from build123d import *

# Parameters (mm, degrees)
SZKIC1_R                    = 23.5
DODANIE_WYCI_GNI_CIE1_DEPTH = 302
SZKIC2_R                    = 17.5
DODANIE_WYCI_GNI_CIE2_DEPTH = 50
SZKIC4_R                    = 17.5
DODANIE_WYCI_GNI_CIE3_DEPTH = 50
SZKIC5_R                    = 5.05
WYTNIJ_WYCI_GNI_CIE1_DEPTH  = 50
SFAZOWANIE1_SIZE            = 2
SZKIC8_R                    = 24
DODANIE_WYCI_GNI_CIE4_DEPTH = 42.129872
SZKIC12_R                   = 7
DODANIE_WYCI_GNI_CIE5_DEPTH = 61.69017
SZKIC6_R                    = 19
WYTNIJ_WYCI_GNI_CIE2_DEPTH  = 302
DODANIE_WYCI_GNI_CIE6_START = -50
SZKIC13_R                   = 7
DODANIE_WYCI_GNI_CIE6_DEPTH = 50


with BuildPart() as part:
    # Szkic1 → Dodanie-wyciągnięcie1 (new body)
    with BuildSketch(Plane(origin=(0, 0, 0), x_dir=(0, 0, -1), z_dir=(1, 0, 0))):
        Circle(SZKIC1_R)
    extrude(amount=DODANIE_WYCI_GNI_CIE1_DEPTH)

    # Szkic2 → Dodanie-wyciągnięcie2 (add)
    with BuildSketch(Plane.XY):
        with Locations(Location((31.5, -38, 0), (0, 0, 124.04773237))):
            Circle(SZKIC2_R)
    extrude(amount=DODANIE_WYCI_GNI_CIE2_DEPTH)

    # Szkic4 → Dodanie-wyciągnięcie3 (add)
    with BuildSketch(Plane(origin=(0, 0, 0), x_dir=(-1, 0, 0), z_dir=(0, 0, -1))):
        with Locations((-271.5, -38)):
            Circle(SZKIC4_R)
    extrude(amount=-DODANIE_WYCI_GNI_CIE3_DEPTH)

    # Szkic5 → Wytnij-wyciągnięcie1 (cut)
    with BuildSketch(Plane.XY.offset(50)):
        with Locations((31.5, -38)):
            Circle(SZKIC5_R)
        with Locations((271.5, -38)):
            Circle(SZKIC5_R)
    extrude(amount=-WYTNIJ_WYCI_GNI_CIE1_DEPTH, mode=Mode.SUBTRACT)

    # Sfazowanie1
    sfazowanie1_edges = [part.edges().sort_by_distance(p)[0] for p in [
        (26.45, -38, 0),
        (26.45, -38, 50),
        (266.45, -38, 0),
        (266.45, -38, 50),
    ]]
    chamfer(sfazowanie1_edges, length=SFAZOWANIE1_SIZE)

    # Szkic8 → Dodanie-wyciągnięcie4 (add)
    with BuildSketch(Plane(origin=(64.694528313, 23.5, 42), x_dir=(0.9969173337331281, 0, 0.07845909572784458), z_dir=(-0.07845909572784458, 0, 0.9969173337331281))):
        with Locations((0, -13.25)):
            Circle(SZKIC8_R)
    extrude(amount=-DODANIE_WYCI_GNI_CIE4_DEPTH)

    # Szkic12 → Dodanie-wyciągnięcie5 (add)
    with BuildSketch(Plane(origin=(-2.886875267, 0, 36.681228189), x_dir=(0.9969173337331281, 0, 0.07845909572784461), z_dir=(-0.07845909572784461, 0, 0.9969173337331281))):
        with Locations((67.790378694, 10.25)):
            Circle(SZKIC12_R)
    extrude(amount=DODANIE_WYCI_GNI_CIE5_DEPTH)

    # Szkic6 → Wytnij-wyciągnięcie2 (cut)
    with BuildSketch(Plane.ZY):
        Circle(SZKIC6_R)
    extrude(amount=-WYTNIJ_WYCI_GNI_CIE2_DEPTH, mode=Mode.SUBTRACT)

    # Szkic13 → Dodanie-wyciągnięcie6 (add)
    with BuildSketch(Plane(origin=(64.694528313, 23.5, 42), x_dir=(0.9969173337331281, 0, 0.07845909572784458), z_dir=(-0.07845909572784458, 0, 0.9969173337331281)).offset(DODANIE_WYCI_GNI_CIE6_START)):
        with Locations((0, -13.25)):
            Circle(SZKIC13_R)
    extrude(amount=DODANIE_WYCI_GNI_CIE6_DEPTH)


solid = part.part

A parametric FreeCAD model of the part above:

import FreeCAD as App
import Part
import Sketcher

V = App.Vector
Q = App.Units.Quantity


def edges_at(feature, points):
    """Names of the edges that pass closest to the given points."""
    edges = feature.Shape.Edges
    near = lambda p: min(range(len(edges)), key=lambda i: edges[i].distToShape(Part.Vertex(*p))[0])
    return sorted({f"Edge{near(p) + 1}" for p in points})

doc = App.newDocument("Part")
body = doc.addObject("PartDesign::Body", "Body")

# Sketch on YZ plane
sketch1 = doc.addObject("Sketcher::SketchObject", "Sketch")
body.addObject(sketch1)
sketch1.AttachmentSupport = (doc.YZ_Plane, [""])
sketch1.MapMode = "FlatFace"
sketch1.addGeometry(Part.Circle(V(0, 0, 0), V(0, 0, 1), 23.5), False)
sketch1.addConstraint([
    Sketcher.Constraint("Coincident", 0, 3, -1, 1),
    Sketcher.Constraint("Diameter", 0, Q("47 mm")),
])
pad1 = doc.addObject("PartDesign::Pad", "Pad")
body.addObject(pad1)
pad1.Profile = sketch1
pad1.Length = 302

# Sketch on XY plane
sketch2 = doc.addObject("Sketcher::SketchObject", "Sketch001")
body.addObject(sketch2)
sketch2.AttachmentSupport = (doc.XY_Plane, [""])
sketch2.MapMode = "FlatFace"
sketch2.addGeometry(Part.Circle(V(31.5, -38, 0), V(0, 0, 1), 17.5), False)
sketch2.addConstraint([
    Sketcher.Constraint("Diameter", 0, Q("35 mm")),
    Sketcher.Constraint("DistanceY", 0, 3, -1, 1, Q("38 mm")),
    Sketcher.Constraint("DistanceX", -1, 1, 0, 3, Q("31.5 mm")),
])
pad2 = doc.addObject("PartDesign::Pad", "Pad001")
body.addObject(pad2)
pad2.Profile = sketch2
pad2.Length = 50

# Sketch on XY plane
sketch3 = doc.addObject("Sketcher::SketchObject", "Sketch002")
body.addObject(sketch3)
sketch3.AttachmentSupport = (doc.XY_Plane, [""])
sketch3.MapMode = "FlatFace"
sketch3.addGeometry(Part.Circle(V(271.5, -38, 0), V(0, 0, 1), 17.5), False)
sketch3.addConstraint([
    Sketcher.Constraint("Diameter", 0, Q("35 mm")),
    Sketcher.Constraint("DistanceY", 0, 3, -1, 1, Q("38 mm")),
    Sketcher.Constraint("DistanceX", -1, 1, 0, 3, Q("271.5 mm")),
])
pad3 = doc.addObject("PartDesign::Pad", "Pad002")
body.addObject(pad3)
pad3.Profile = sketch3
pad3.Length = 50

# Sketch on XY plane
sketch4 = doc.addObject("Sketcher::SketchObject", "Sketch003")
body.addObject(sketch4)
sketch4.AttachmentSupport = (doc.XY_Plane, [""])
sketch4.MapMode = "FlatFace"
sketch4.AttachmentOffset = App.Placement(V(0, 0, 50), App.Rotation())
sketch4.addGeometry([
    Part.Circle(V(31.5, -38, 0), V(0, 0, 1), 5.05),
    Part.Circle(V(271.5, -38, 0), V(0, 0, 1), 5.05),
], False)
sketch4.addConstraint([
    Sketcher.Constraint("Equal", 0, 1),
    Sketcher.Constraint("Horizontal", 0, 3, 1, 3),
    Sketcher.Constraint("Diameter", 0, Q("10.1 mm")),
    Sketcher.Constraint("DistanceY", 0, 3, -1, 1, Q("38 mm")),
    Sketcher.Constraint("DistanceX", 0, 3, 1, 3, Q("240 mm")),
    Sketcher.Constraint("DistanceX", -1, 1, 0, 3, Q("31.5 mm")),
])
pocket1 = doc.addObject("PartDesign::Pocket", "Pocket")
body.addObject(pocket1)
pocket1.Profile = sketch4
pocket1.Length = 50
doc.recompute()

chamfer = doc.addObject("PartDesign::Chamfer", "Chamfer")
body.addObject(chamfer)
chamfer.Base = (pocket1, edges_at(pocket1, [
    (26.45, -38, 0),
    (26.45, -38, 50),
    (266.45, -38, 0),
    (266.45, -38, 50),
]))
chamfer.Size = 2

# Sketch on an angled plane
sketch5 = doc.addObject("Sketcher::SketchObject", "Sketch004")
body.addObject(sketch5)
sketch5.Placement = App.Placement(V(64.694528, 23.5, 42), App.Rotation(V(0.996917334, 0, 0.078459096), V(0, 1.000000001, 0), V(-0.078459096, 0, 0.996917334), "ZXY"))
sketch5.addGeometry(Part.Circle(V(0, -13.25, 0), V(0, 0, 1), 24), False)
sketch5.addConstraint([
    Sketcher.Constraint("PointOnObject", 0, 3, -2),
    Sketcher.Constraint("Diameter", 0, Q("48 mm")),
    Sketcher.Constraint("DistanceY", 0, 3, -1, 1, Q("13.25 mm")),
])
pad4 = doc.addObject("PartDesign::Pad", "Pad003")
body.addObject(pad4)
pad4.Profile = sketch5
pad4.Length = 42.129872
pad4.Reversed = True

# Sketch on an angled plane
sketch6 = doc.addObject("Sketcher::SketchObject", "Sketch005")
body.addObject(sketch6)
sketch6.Placement = App.Placement(V(-2.886875, 0, 36.681228), App.Rotation(V(0.996917334, 0, 0.078459096), V(0, 1.000000001, 0), V(-0.078459096, 0, 0.996917334), "ZXY"))
sketch6.addGeometry(Part.Circle(V(67.790379, 10.25, 0), V(0, 0, 1), 7), False)
sketch6.addConstraint([
    Sketcher.Constraint("Diameter", 0, Q("14 mm")),
    Sketcher.Constraint("DistanceY", -1, 1, 0, 3, Q("10.25 mm")),
    Sketcher.Constraint("DistanceX", -1, 1, 0, 3, Q("67.790379 mm")),
])
pad5 = doc.addObject("PartDesign::Pad", "Pad004")
body.addObject(pad5)
pad5.Profile = sketch6
pad5.Length = 61.69017

# Sketch on YZ plane
sketch7 = doc.addObject("Sketcher::SketchObject", "Sketch006")
body.addObject(sketch7)
sketch7.AttachmentSupport = (doc.YZ_Plane, [""])
sketch7.MapMode = "FlatFace"
sketch7.addGeometry(Part.Circle(V(0, 0, 0), V(0, 0, 1), 19), False)
sketch7.addConstraint([
    Sketcher.Constraint("Coincident", 0, 3, -1, 1),
    Sketcher.Constraint("Diameter", 0, Q("38 mm")),
])
pocket2 = doc.addObject("PartDesign::Pocket", "Pocket001")
body.addObject(pocket2)
pocket2.Profile = sketch7
pocket2.Length = 302
pocket2.Reversed = True

# Sketch on an angled plane
sketch8 = doc.addObject("Sketcher::SketchObject", "Sketch007")
body.addObject(sketch8)
sketch8.Placement = App.Placement(V(68.617483, 23.5, -7.845867), App.Rotation(V(0.996917334, 0, 0.078459096), V(0, 1.000000001, 0), V(-0.078459096, 0, 0.996917334), "ZXY"))
sketch8.addGeometry(Part.Circle(V(0, -13.25, 0), V(0, 0, 1), 7), False)
sketch8.addConstraint([
    Sketcher.Constraint("PointOnObject", 0, 3, -2),
    Sketcher.Constraint("Diameter", 0, Q("14 mm")),
    Sketcher.Constraint("DistanceY", 0, 3, -1, 1, Q("13.25 mm")),
])
pad6 = doc.addObject("PartDesign::Pad", "Pad005")
body.addObject(pad6)
pad6.Profile = sketch8
pad6.Length = 50

doc.recompute()
